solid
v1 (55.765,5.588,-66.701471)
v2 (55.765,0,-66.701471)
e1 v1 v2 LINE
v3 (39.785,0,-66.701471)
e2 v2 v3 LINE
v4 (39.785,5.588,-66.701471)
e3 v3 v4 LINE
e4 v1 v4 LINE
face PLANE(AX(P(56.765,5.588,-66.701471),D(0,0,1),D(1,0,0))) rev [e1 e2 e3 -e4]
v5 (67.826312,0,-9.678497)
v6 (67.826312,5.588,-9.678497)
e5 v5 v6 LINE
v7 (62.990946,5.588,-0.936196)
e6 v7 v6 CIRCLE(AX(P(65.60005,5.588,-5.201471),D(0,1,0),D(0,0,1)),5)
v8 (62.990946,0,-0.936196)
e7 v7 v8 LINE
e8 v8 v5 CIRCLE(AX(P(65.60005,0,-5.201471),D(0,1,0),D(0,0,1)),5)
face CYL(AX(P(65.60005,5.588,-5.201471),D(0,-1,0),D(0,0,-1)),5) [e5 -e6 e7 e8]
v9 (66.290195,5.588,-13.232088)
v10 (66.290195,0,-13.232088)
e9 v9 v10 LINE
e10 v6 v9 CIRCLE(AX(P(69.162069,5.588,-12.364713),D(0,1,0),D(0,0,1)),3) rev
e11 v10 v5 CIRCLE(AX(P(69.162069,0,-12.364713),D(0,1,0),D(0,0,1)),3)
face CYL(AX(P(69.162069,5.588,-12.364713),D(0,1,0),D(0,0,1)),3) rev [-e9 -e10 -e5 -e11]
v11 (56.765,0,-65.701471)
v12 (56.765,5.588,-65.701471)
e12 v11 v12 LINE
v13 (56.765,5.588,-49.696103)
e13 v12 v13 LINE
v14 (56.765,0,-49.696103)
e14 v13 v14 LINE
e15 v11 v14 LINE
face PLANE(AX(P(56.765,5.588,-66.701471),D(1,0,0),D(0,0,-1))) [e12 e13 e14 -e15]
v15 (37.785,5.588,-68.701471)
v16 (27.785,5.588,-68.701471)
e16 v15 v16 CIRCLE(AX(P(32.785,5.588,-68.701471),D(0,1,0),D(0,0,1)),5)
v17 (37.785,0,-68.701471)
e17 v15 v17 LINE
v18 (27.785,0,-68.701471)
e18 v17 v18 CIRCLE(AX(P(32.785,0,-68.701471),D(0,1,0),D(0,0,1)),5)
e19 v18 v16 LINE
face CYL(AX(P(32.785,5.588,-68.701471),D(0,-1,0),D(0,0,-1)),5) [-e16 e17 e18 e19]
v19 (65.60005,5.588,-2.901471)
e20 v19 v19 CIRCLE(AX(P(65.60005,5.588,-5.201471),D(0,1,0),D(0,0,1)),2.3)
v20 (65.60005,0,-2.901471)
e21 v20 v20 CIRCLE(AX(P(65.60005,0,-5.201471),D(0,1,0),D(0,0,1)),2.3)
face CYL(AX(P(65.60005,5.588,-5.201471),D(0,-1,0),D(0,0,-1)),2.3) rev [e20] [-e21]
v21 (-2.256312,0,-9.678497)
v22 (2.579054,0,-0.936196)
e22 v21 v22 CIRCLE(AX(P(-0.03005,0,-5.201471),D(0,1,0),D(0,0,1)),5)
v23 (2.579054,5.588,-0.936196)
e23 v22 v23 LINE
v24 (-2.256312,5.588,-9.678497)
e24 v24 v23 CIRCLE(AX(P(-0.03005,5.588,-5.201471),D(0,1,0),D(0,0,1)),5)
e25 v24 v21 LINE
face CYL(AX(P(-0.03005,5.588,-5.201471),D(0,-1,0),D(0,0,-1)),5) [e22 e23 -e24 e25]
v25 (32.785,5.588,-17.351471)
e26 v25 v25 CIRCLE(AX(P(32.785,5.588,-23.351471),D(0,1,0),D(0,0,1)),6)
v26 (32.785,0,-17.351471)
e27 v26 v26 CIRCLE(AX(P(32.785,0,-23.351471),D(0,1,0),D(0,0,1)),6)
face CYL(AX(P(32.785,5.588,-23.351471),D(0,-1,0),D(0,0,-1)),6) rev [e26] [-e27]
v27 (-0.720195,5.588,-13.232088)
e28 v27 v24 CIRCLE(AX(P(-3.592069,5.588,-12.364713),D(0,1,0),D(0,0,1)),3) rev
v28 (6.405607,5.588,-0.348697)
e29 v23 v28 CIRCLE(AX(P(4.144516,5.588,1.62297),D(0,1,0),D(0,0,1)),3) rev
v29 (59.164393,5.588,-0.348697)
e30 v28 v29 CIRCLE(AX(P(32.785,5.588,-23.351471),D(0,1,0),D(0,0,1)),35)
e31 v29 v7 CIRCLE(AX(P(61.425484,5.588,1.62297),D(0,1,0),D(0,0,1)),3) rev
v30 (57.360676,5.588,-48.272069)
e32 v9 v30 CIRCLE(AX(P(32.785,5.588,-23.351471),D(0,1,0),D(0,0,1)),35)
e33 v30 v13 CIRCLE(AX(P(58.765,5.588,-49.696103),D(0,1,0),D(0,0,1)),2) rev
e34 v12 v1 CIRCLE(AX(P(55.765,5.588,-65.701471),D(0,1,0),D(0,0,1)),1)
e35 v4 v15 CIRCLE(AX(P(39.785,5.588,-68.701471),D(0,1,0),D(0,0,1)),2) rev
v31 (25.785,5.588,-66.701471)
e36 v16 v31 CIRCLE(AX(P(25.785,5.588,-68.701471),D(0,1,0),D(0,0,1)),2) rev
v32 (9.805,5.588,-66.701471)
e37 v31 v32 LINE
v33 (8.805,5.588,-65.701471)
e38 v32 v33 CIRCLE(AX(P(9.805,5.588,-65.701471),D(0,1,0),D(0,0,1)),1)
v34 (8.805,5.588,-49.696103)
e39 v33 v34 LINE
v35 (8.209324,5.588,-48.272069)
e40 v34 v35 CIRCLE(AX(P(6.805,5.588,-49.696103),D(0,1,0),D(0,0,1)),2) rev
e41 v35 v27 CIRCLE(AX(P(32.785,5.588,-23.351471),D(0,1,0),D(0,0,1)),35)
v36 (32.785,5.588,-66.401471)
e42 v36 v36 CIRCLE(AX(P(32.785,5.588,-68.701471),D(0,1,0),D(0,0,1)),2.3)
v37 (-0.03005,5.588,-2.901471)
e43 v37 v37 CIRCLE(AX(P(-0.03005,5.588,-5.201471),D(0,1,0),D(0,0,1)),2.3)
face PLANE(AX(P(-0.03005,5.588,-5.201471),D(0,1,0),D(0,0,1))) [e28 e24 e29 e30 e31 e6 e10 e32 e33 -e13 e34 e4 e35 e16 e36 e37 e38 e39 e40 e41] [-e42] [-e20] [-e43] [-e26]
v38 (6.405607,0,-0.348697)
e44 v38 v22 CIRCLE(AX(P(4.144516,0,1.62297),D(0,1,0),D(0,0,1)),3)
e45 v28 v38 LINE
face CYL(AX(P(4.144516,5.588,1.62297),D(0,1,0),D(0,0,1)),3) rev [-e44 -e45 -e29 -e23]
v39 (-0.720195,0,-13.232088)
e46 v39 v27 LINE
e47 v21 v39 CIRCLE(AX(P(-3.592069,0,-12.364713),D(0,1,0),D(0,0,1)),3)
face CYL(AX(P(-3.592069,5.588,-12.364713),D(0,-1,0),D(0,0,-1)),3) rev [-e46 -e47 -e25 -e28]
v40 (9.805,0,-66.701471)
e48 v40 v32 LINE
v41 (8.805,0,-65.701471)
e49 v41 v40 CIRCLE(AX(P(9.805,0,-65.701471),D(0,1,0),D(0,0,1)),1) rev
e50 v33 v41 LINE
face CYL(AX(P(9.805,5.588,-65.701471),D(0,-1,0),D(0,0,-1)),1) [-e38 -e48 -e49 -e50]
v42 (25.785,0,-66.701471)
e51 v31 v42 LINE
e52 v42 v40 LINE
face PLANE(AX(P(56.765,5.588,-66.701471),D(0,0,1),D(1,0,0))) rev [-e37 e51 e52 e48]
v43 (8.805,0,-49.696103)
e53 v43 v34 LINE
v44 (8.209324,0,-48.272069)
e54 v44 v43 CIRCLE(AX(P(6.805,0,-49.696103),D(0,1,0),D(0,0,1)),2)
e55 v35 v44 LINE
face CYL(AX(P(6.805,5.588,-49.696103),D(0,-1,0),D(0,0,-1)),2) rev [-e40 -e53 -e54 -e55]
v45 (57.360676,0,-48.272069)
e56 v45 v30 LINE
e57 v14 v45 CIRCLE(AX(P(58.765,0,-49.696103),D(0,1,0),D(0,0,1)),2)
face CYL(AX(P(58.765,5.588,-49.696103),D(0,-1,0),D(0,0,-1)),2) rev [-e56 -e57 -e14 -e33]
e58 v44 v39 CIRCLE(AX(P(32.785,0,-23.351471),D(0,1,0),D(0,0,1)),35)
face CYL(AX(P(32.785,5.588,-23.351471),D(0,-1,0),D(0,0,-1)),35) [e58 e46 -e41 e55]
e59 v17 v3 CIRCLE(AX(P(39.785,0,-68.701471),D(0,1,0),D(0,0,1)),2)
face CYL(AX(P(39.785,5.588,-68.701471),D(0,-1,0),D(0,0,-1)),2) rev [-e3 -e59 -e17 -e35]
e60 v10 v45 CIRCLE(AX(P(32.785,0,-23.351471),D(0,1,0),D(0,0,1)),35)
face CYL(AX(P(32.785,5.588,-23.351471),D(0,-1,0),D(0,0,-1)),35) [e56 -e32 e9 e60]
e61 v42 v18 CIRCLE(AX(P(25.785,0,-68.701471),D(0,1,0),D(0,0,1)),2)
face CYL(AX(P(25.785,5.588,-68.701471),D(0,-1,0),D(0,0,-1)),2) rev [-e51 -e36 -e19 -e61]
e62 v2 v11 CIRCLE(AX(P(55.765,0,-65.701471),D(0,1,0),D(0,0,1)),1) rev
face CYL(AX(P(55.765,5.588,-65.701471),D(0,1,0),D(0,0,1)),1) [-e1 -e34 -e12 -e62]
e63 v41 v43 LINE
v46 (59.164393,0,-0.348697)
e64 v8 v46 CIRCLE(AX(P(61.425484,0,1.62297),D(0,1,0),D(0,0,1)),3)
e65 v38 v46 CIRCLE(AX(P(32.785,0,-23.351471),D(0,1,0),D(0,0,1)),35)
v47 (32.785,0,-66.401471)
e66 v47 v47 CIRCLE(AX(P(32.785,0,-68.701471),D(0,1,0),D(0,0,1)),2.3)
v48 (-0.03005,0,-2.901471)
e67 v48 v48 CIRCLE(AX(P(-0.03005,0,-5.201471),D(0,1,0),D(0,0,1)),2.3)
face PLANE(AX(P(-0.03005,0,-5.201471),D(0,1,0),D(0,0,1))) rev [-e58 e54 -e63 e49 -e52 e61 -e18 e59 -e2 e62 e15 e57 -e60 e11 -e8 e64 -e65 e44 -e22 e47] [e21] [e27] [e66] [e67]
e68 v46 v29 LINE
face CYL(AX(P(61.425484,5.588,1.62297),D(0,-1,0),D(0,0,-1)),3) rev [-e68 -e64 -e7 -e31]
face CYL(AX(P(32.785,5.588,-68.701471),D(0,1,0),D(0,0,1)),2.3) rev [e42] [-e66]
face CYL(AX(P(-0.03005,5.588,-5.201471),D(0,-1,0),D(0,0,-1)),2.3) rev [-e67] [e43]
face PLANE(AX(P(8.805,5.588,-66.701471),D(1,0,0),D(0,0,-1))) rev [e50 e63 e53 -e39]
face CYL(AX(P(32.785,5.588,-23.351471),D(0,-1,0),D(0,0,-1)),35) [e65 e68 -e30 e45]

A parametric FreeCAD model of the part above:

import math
import FreeCAD as App
import Part
import Sketcher
from FreeCAD import Vector


def edges_at(feature, points):
    """Names of the edges that pass closest to the given points."""
    edges = feature.Shape.Edges
    near = lambda p: min(range(len(edges)), key=lambda i: edges[i].distToShape(Part.Vertex(*p))[0])
    return sorted({f"Edge{near(p) + 1}" for p in points})

doc = App.newDocument("Part")
body = doc.addObject("PartDesign::Body", "Body")

sketch1 = body.newObject("Sketcher::SketchObject", "Sketch")
sketch1.AttachmentSupport = (doc.getObject("XZ_Plane"), [""])
sketch1.MapMode = "FlatFace"
sketch1.addGeometry(Part.ArcOfCircle(Part.Circle(Vector(32.8, -23.4, 0), Vector(0, 0, 1), 35), math.radians(-47), math.radians(22)), False)
sketch1.addGeometry(Part.LineSegment(Vector(56.8, -48.8, 0), Vector(56.8, -66.7, 0)), False)
sketch1.addGeometry(Part.LineSegment(Vector(56.8, -66.7, 0), Vector(37.4, -66.7, 0)), False)
sketch1.addGeometry(Part.ArcOfCircle(Part.Circle(Vector(32.8, -68.7, 0), Vector(0, 0, 1), 5), math.radians(156), math.radians(384)), False)
sketch1.addGeometry(Part.LineSegment(Vector(28.2, -66.7, 0), Vector(8.8, -66.7, 0)), False)
sketch1.addGeometry(Part.LineSegment(Vector(8.8, -66.7, 0), Vector(8.8, -48.8, 0)), False)
sketch1.addGeometry(Part.ArcOfCircle(Part.Circle(Vector(32.8, -23.4, 0), Vector(0, 0, 1), 35), math.radians(158), math.radians(227)), False)
sketch1.addGeometry(Part.ArcOfCircle(Part.Circle(Vector(0, -5.2, 0), Vector(0, 0, 1), 5), math.radians(28), math.radians(274)), False)
sketch1.addGeometry(Part.ArcOfCircle(Part.Circle(Vector(32.8, -23.4, 0), Vector(0, 0, 1), 35), math.radians(36), math.radians(144)), False)
sketch1.addGeometry(Part.ArcOfCircle(Part.Circle(Vector(65.6, -5.2, 0), Vector(0, 0, 1), 5), math.radians(-94), math.radians(152)), False)
sketch1.addGeometry(Part.Circle(Vector(32.8, -23.4, 0), Vector(0, 0, 1), 6), False)
sketch1.addGeometry(Part.Circle(Vector(65.6, -5.2, 0), Vector(0, 0, 1), 2.3), False)
sketch1.addGeometry(Part.Circle(Vector(0, -5.2, 0), Vector(0, 0, 1), 2.3), False)
sketch1.addConstraint(Sketcher.Constraint("Coincident", 0, 1, 1, 1))
sketch1.addConstraint(Sketcher.Constraint("Coincident", 1, 2, 2, 1))
sketch1.addConstraint(Sketcher.Constraint("Coincident", 2, 2, 3, 2))
sketch1.addConstraint(Sketcher.Constraint("Coincident", 3, 1, 4, 1))
sketch1.addConstraint(Sketcher.Constraint("Coincident", 4, 2, 5, 1))
sketch1.addConstraint(Sketcher.Constraint("Coincident", 5, 2, 6, 2))
sketch1.addConstraint(Sketcher.Constraint("Coincident", 6, 1, 7, 2))
sketch1.addConstraint(Sketcher.Constraint("Coincident", 7, 1, 8, 2))
sketch1.addConstraint(Sketcher.Constraint("Coincident", 8, 1, 9, 2))
sketch1.addConstraint(Sketcher.Constraint("Coincident", 9, 1, 0, 2))
sketch1.addConstraint(Sketcher.Constraint("Vertical", 1))
sketch1.addConstraint(Sketcher.Constraint("Horizontal", 2))
sketch1.addConstraint(Sketcher.Constraint("Horizontal", 4))
sketch1.addConstraint(Sketcher.Constraint("Vertical", 5))
sketch1.addConstraint(Sketcher.Constraint("Coincident", 6, 3, 0, 3))
sketch1.addConstraint(Sketcher.Constraint("Coincident", 8, 3, 0, 3))
sketch1.addConstraint(Sketcher.Constraint("Coincident", 10, 3, 0, 3))
sketch1.addConstraint(Sketcher.Constraint("Coincident", 11, 3, 9, 3))
sketch1.addConstraint(Sketcher.Constraint("Coincident", 12, 3, 7, 3))
sketch1.addConstraint(Sketcher.Constraint("Equal", 0, 6))
sketch1.addConstraint(Sketcher.Constraint("Equal", 3, 7))
sketch1.addConstraint(Sketcher.Constraint("Equal", 6, 8))
sketch1.addConstraint(Sketcher.Constraint("Equal", 7, 9))
sketch1.addConstraint(Sketcher.Constraint("Equal", 11, 12))
sketch1.addConstraint(Sketcher.Constraint("Horizontal", 7, 3, 9, 3))
sketch1.addConstraint(Sketcher.Constraint("Horizontal", 2, 2, 3, 1))
sketch1.addConstraint(Sketcher.Constraint("Horizontal", 0, 1, 5, 2))
sketch1.addConstraint(Sketcher.Constraint("Horizontal", 7, 1, 8, 1))
sketch1.addConstraint(Sketcher.Constraint("Vertical", 0, 3, 3, 3))
sketch1.addConstraint(Sketcher.Constraint("Diameter", 10, 12.0))
sketch1.addConstraint(Sketcher.Constraint("Radius", 0, 35.0))
sketch1.addConstraint(Sketcher.Constraint("Radius", 3, 5.0))
sketch1.addConstraint(Sketcher.Constraint("Diameter", 11, 4.6))
sketch1.addConstraint(Sketcher.Constraint("DistanceY", 3, 3, 1, 2, 2.0))
sketch1.addConstraint(Sketcher.Constraint("DistanceY", 3, 3, 7, 3, 63.5))
sketch1.addConstraint(Sketcher.Constraint("DistanceY", 3, 3, 0, 3, 45.35))
sketch1.addConstraint(Sketcher.Constraint("DistanceX", 3, 3, 0, 1, 23.98))
sketch1.addConstraint(Sketcher.Constraint("DistanceX", -1, 1, 0, 3, 32.785))
sketch1.addConstraint(Sketcher.Constraint("DistanceY", 6, 1, -1, 1, 10.186601))
sketch1.addConstraint(Sketcher.Constraint("DistanceX", 7, 3, 9, 3, 65.6301))
pad1 = body.newObject("PartDesign::Pad", "Pad")
pad1.Profile = sketch1
pad1.Length = 5.588
pad1.Reversed = True

sketch2 = body.newObject("Sketcher::SketchObject", "Sketch001")
sketch2.AttachmentSupport = (doc.getObject("XZ_Plane"), [""])
sketch2.MapMode = "FlatFace"
sketch2.AttachmentOffset = App.Placement(Vector(0, 0, -5.588), App.Rotation())
sketch2.addGeometry(Part.Circle(Vector(32.8, -68.7, 0), Vector(0, 0, 1), 2.3), False)
sketch2.addConstraint(Sketcher.Constraint("Diameter", 0, 4.6))
sketch2.addConstraint(Sketcher.Constraint("DistanceX", -1, 1, 0, 3, 32.785))
sketch2.addConstraint(Sketcher.Constraint("DistanceY", 0, 3, -1, 1, 68.701471))
doc.recompute()
hole = body.newObject("PartDesign::Hole", "Hole")
hole.Profile = sketch2
hole.ThreadType = "None"
hole.Diameter = 4.6
hole.DepthType = "ThroughAll"
hole.Reversed = True
doc.recompute()

fillet = body.newObject("PartDesign::Fillet", "Fillet")
fillet.Base = (hole, edges_at(hole, [
    (65.215, 2.794, -10.187),
    (61.173, 2.794, -2.878),
    (0.355, 2.794, -10.187),
    (4.397, 2.794, -2.878),
]))
fillet.Radius = 3
doc.recompute()

fillet2 = body.newObject("PartDesign::Fillet", "Fillet001")
fillet2.Base = (fillet, edges_at(fillet, [(28.202, 2.794, -66.701), (37.368, 2.794, -66.701)]))
fillet2.Radius = 2
doc.recompute()

fillet3 = body.newObject("PartDesign::Fillet", "Fillet002")
fillet3.Base = (fillet2, edges_at(fillet2, [(8.805, 2.794, -48.846), (56.765, 2.794, -48.846)]))
fillet3.Radius = 2
doc.recompute()

fillet4 = body.newObject("PartDesign::Fillet", "Fillet003")
fillet4.Base = (fillet3, edges_at(fillet3, [(56.765, 2.794, -66.701), (8.805, 2.794, -66.701)]))
fillet4.Radius = 1

doc.recompute()
